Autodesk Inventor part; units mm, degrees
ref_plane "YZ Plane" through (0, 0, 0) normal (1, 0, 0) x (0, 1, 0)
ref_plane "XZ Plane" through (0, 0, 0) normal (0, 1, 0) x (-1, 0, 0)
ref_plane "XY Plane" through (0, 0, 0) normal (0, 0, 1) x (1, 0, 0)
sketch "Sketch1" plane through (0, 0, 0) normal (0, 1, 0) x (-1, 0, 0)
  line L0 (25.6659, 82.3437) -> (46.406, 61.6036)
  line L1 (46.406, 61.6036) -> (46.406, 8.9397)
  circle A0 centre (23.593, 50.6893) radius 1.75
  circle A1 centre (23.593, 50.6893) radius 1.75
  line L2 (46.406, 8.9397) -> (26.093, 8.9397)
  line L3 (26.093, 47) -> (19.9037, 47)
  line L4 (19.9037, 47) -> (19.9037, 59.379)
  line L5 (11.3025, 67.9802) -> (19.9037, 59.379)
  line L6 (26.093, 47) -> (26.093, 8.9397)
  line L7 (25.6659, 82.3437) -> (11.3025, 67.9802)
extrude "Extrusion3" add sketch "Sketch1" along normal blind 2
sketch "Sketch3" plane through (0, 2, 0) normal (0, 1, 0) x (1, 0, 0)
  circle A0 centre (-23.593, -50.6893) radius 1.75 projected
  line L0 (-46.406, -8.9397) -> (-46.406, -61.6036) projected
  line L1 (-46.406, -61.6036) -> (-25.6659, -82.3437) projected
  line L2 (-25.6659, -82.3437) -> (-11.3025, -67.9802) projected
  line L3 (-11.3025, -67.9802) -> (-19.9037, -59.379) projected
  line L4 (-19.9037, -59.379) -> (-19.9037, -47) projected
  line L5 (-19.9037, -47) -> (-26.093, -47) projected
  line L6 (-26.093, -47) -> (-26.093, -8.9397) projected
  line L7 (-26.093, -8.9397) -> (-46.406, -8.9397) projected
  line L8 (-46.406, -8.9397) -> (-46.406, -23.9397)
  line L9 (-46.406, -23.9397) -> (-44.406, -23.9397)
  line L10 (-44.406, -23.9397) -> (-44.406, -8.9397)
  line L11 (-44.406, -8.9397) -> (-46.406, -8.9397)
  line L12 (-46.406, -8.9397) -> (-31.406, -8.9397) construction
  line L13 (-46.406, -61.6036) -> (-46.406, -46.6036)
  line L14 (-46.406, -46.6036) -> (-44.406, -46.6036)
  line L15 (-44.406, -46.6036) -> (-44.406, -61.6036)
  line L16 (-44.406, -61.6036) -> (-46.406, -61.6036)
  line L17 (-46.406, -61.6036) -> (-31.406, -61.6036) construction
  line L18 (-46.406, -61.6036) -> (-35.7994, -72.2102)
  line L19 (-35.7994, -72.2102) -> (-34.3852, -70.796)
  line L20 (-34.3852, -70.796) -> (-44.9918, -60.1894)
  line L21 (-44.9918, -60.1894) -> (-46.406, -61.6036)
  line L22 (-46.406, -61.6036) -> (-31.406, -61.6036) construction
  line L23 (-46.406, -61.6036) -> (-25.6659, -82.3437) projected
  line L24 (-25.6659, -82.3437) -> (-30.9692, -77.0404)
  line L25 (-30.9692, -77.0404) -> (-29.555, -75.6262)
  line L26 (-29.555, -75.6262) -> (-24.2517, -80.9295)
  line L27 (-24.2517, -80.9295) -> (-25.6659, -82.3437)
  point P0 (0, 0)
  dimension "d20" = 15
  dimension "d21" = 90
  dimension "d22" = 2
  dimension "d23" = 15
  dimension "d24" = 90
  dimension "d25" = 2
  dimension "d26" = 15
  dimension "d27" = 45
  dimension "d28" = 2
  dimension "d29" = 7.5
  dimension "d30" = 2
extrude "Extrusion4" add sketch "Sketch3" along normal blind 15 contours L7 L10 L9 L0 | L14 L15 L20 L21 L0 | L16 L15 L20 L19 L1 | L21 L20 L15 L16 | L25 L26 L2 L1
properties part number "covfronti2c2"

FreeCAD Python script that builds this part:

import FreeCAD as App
import Part
import Sketcher
from FreeCAD import Vector
Q = App.Units.Quantity

doc = App.newDocument("Part")
body = doc.addObject("PartDesign::Body", "Body")

sketch1 = doc.addObject("Sketcher::SketchObject", "Sketch")
body.addObject(sketch1)
sketch1.AttachmentSupport = (doc.XZ_Plane, [""])
sketch1.MapMode = "FlatFace"
sketch1.addGeometry([
    Part.LineSegment(Vector(-46.4, 61.6, 0), Vector(-25.7, 82.3, 0)),
    Part.LineSegment(Vector(-25.7, 82.3, 0), Vector(-11.3, 68, 0)),
    Part.LineSegment(Vector(-11.3, 68, 0), Vector(-19.9, 59.4, 0)),
    Part.LineSegment(Vector(-19.9, 59.4, 0), Vector(-19.9, 47, 0)),
    Part.LineSegment(Vector(-19.9, 47, 0), Vector(-26.1, 47, 0)),
    Part.LineSegment(Vector(-26.1, 47, 0), Vector(-26.1, 8.9, 0)),
    Part.LineSegment(Vector(-26.1, 8.9, 0), Vector(-46.4, 8.9, 0)),
    Part.LineSegment(Vector(-46.4, 8.9, 0), Vector(-46.4, 61.6, 0)),
    Part.Circle(Vector(-23.6, 50.7, 0), Vector(0, 0, 1), 1.8),
], False)
sketch1.addConstraint([
    Sketcher.Constraint("Coincident", 0, 2, 1, 1),
    Sketcher.Constraint("Coincident", 1, 2, 2, 1),
    Sketcher.Constraint("Coincident", 2, 2, 3, 1),
    Sketcher.Constraint("Coincident", 3, 2, 4, 1),
    Sketcher.Constraint("Coincident", 4, 2, 5, 1),
    Sketcher.Constraint("Coincident", 5, 2, 6, 1),
    Sketcher.Constraint("Coincident", 6, 2, 7, 1),
    Sketcher.Constraint("Coincident", 7, 2, 0, 1),
    Sketcher.Constraint("Vertical", 3),
    Sketcher.Constraint("Horizontal", 4),
    Sketcher.Constraint("Vertical", 5),
    Sketcher.Constraint("Horizontal", 6),
    Sketcher.Constraint("Vertical", 7),
    Sketcher.Constraint("Perpendicular", 0, 1),
    Sketcher.Constraint("Perpendicular", 1, 2),
    Sketcher.Constraint("Diameter", 8, Q("3.5 mm")),
    Sketcher.Constraint("Angle", 0, Q("45 deg")),
    Sketcher.Constraint("DistanceY", -1, 1, 3, 2, Q("47 mm")),
    Sketcher.Constraint("DistanceX", 4, 2, 8, 3, Q("2.5 mm")),
    Sketcher.Constraint("DistanceX", 6, 2, 6, 1, Q("20.313 mm")),
    Sketcher.Constraint("DistanceY", 3, 2, 3, 1, Q("12.379 mm")),
    Sketcher.Constraint("DistanceY", 7, 1, 7, 2, Q("52.664 mm")),
    Sketcher.Constraint("DistanceX", 7, 2, 0, 2, Q("20.74 mm")),
    Sketcher.Constraint("Distance", 1, Q("20.313 mm")),
    Sketcher.Constraint("Distance", 2, Q("12.164 mm")),
    Sketcher.Constraint("DistanceX", 8, 3, -1, 1, Q("23.593 mm")),
    Sketcher.Constraint("DistanceY", 8, 3, 1, 2, Q("17.291 mm")),
])
pad1 = doc.addObject("PartDesign::Pad", "Pad")
body.addObject(pad1)
pad1.Profile = sketch1
pad1.Length = 2
pad1.Reversed = True

sketch2 = doc.addObject("Sketcher::SketchObject", "Sketch001")
body.addObject(sketch2)
sketch2.AttachmentSupport = (doc.XZ_Plane, [""])
sketch2.MapMode = "FlatFace"
sketch2.AttachmentOffset = App.Placement(Vector(0, 0, -2), App.Rotation())
sketch2.addGeometry([
    Part.LineSegment(Vector(-44.4, 8.9, 0), Vector(-46.4, 8.9, 0)),
    Part.LineSegment(Vector(-46.4, 8.9, 0), Vector(-46.4, 23.9, 0)),
    Part.LineSegment(Vector(-46.4, 23.9, 0), Vector(-44.4, 23.9, 0)),
    Part.LineSegment(Vector(-44.4, 23.9, 0), Vector(-44.4, 8.9, 0)),
    Part.LineSegment(Vector(-44.4, 46.6, 0), Vector(-46.4, 46.6, 0)),
    Part.LineSegment(Vector(-46.4, 46.6, 0), Vector(-46.4, 61.6, 0)),
    Part.LineSegment(Vector(-46.4, 61.6, 0), Vector(-35.8, 72.2, 0)),
    Part.LineSegment(Vector(-35.8, 72.2, 0), Vector(-34.4, 70.8, 0)),
    Part.LineSegment(Vector(-34.4, 70.8, 0), Vector(-44.4, 60.8, 0)),
    Part.LineSegment(Vector(-44.4, 60.8, 0), Vector(-44.4, 46.6, 0)),
    Part.LineSegment(Vector(-29.6, 75.6, 0), Vector(-31, 77, 0)),
    Part.LineSegment(Vector(-31, 77, 0), Vector(-25.7, 82.3, 0)),
    Part.LineSegment(Vector(-25.7, 82.3, 0), Vector(-24.3, 80.9, 0)),
    Part.LineSegment(Vector(-24.3, 80.9, 0), Vector(-29.6, 75.6, 0)),
], False)
sketch2.addConstraint([
    Sketcher.Constraint("Coincident", 0, 2, 1, 1),
    Sketcher.Constraint("Coincident", 1, 2, 2, 1),
    Sketcher.Constraint("Coincident", 2, 2, 3, 1),
    Sketcher.Constraint("Coincident", 3, 2, 0, 1),
    Sketcher.Constraint("Coincident", 4, 2, 5, 1),
    Sketcher.Constraint("Coincident", 5, 2, 6, 1),
    Sketcher.Constraint("Coincident", 6, 2, 7, 1),
    Sketcher.Constraint("Coincident", 7, 2, 8, 1),
    Sketcher.Constraint("Coincident", 8, 2, 9, 1),
    Sketcher.Constraint("Coincident", 9, 2, 4, 1),
    Sketcher.Constraint("Coincident", 10, 2, 11, 1),
    Sketcher.Constraint("Coincident", 11, 2, 12, 1),
    Sketcher.Constraint("Coincident", 12, 2, 13, 1),
    Sketcher.Constraint("Coincident", 13, 2, 10, 1),
    Sketcher.Constraint("Horizontal", 0),
    Sketcher.Constraint("Vertical", 1),
    Sketcher.Constraint("Horizontal", 2),
    Sketcher.Constraint("Vertical", 3),
    Sketcher.Constraint("Horizontal", 4),
    Sketcher.Constraint("Vertical", 5),
    Sketcher.Constraint("Vertical", 9),
    Sketcher.Constraint("Perpendicular", 6, 7),
    Sketcher.Constraint("Perpendicular", 7, 8),
    Sketcher.Constraint("Perpendicular", 8, 10),
    Sketcher.Constraint("Perpendicular", 10, 11),
    Sketcher.Constraint("Perpendicular", 11, 12),
    Sketcher.Constraint("Perpendicular", 12, 13),
    Sketcher.Constraint("Vertical", 1, 2, 4, 2),
    Sketcher.Constraint("Vertical", 3, 2, 8, 2),
    Sketcher.Constraint("Equal", 3, 5),
    Sketcher.Constraint("Equal", 7, 10),
    Sketcher.Constraint("DistanceX", 0, 2, 0, 1, Q("2 mm")),
    Sketcher.Constraint("DistanceY", 1, 1, 1, 2, Q("15 mm")),
    Sketcher.Constraint("Angle", 6, Q("45 deg")),
    Sketcher.Constraint("Distance", 6, Q("15 mm")),
    Sketcher.Constraint("Distance", 7, Q("2 mm")),
    Sketcher.Constraint("Distance", 11, Q("7.5 mm")),
    Sketcher.Constraint("DistanceX", 8, 2, 11, 2, Q("18.74 mm")),
    Sketcher.Constraint("DistanceY", 5, 2, 11, 2, Q("20.74 mm")),
    Sketcher.Constraint("DistanceX", 0, 2, -1, 1, Q("46.406 mm")),
    Sketcher.Constraint("DistanceY", -1, 1, 7, 2, Q("70.796 mm")),
    Sketcher.Constraint("DistanceY", 1, 2, 4, 2, Q("22.664 mm")),
])
pad2 = doc.addObject("PartDesign::Pad", "Pad001")
body.addObject(pad2)
pad2.Profile = sketch2
pad2.Length = 15
pad2.Reversed = True

doc.recompute()
